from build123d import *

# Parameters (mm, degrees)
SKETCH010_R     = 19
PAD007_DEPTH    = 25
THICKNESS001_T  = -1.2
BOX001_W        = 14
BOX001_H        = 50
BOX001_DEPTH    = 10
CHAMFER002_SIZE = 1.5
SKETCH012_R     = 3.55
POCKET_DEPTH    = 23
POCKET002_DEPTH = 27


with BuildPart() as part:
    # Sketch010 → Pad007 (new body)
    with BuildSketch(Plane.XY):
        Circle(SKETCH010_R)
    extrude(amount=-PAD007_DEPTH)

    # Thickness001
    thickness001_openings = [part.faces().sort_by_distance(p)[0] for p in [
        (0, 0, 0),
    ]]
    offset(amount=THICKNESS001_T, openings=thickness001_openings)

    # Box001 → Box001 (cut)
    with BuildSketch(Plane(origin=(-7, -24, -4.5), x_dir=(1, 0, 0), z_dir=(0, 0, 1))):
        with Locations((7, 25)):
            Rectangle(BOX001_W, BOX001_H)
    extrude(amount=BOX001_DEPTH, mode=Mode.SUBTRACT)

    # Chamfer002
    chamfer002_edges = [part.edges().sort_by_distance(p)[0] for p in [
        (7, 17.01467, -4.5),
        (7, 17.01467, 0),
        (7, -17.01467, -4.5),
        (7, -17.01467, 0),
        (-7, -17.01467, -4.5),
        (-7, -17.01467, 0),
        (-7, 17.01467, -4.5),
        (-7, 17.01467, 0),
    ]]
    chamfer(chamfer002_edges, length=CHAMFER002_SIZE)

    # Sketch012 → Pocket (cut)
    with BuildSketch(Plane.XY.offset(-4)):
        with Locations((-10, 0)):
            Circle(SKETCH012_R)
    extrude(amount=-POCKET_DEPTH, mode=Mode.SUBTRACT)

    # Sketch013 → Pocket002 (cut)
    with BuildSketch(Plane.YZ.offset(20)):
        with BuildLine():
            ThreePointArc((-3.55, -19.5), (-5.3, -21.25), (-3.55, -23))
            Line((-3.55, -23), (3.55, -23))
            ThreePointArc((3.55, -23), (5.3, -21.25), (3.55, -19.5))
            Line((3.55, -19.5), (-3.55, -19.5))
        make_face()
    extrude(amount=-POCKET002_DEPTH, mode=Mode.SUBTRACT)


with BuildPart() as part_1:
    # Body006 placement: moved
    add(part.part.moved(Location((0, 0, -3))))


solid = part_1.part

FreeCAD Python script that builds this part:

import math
import FreeCAD as App
import Part
import Sketcher

V = App.Vector
Q = App.Units.Quantity


def edges_at(feature, points):
    """Names of the edges that pass closest to the given points."""
    edges = feature.Shape.Edges
    near = lambda p: min(range(len(edges)), key=lambda i: edges[i].distToShape(Part.Vertex(*p))[0])
    return sorted({f"Edge{near(p) + 1}" for p in points})


def faces_at(feature, points):
    """Names of the faces that lie closest to the given points."""
    faces = feature.Shape.Faces
    near = lambda p: min(range(len(faces)), key=lambda i: faces[i].distToShape(Part.Vertex(*p))[0])
    return sorted({f"Face{near(p) + 1}" for p in points})

doc = App.newDocument("Part")
params = doc.addObject("Spreadsheet::Sheet", "Params")
for row, (alias, value) in enumerate([
    ("sketch1_diameter", "38 mm"),
    ("pad1_length", "25 mm"),
    ("thickness_wall", "1.2 mm"),
    ("sketch2_width", "14 mm"),
    ("sketch2_height", "50 mm"),
    ("pocket1_length", "10 mm"),
    ("chamfer_size", "1.5 mm"),
    ("sketch3_diameter", "7.1 mm"),
    ("pocket2_length", "23 mm"),
    ("sketch4_radius", "1.75 mm"),
    ("sketch4_width", "7.1 mm"),
    ("pocket3_length", "27 mm"),
], start=1):
    params.set(f"A{row}", alias)
    params.set(f"B{row}", "=" + value)
    params.setAlias(f"B{row}", alias)

body = doc.addObject("PartDesign::Body", "Body")

# Sketch on XY plane
sketch1 = body.newObject("Sketcher::SketchObject", "Sketch")
sketch1.AttachmentSupport = (doc.getObject("XY_Plane"), [""])
sketch1.MapMode = "FlatFace"
sketch1.addGeometry(Part.Circle(V(0, 0, 0), V(0, 0, 1), 19), False)
sketch1.addConstraint([
    Sketcher.Constraint("Coincident", 0, 3, -1, 1),
    Sketcher.Constraint("Diameter", 0, Q("38 mm")),
])
sketch1.setExpression("Constraints[1]", "Params.sketch1_diameter")
pad1 = body.newObject("PartDesign::Pad", "Pad")
pad1.Profile = sketch1
pad1.setExpression("Length", "Params.pad1_length")
pad1.Reversed = True
doc.recompute()

thickness = body.newObject("PartDesign::Thickness", "Thickness")
thickness.Base = (pad1, faces_at(pad1, [(0, 0, 0)]))
thickness.setExpression("Value", "Params.thickness_wall")
thickness.Reversed = True
thickness.Join = "Arc"

# Sketch on XY plane
sketch2 = body.newObject("Sketcher::SketchObject", "Sketch001")
sketch2.AttachmentSupport = (doc.getObject("XY_Plane"), [""])
sketch2.MapMode = "FlatFace"
sketch2.AttachmentOffset = App.Placement(V(0, 0, -4.5), App.Rotation())
sketch2.addGeometry([
    Part.LineSegment(V(-7, 26, 0), V(-7, -24, 0)),
    Part.LineSegment(V(-7, -24, 0), V(7, -24, 0)),
    Part.LineSegment(V(7, -24, 0), V(7, 26, 0)),
    Part.LineSegment(V(7, 26, 0), V(-7, 26, 0)),
], False)
sketch2.addConstraint([
    Sketcher.Constraint("Coincident", 0, 2, 1, 1),
    Sketcher.Constraint("Coincident", 1, 2, 2, 1),
    Sketcher.Constraint("Coincident", 2, 2, 3, 1),
    Sketcher.Constraint("Coincident", 3, 2, 0, 1),
    Sketcher.Constraint("Vertical", 0),
    Sketcher.Constraint("Horizontal", 1),
    Sketcher.Constraint("Vertical", 2),
    Sketcher.Constraint("Horizontal", 3),
    Sketcher.Constraint("DistanceX", 1, 1, 1, 2, Q("14 mm")),
    Sketcher.Constraint("DistanceY", 0, 2, 0, 1, Q("50 mm")),
    Sketcher.Constraint("DistanceX", 0, 2, -1, 1, Q("7 mm")),
    Sketcher.Constraint("DistanceY", 0, 2, -1, 1, Q("24 mm")),
])
sketch2.setExpression("Constraints[8]", "Params.sketch2_width")
sketch2.setExpression("Constraints[9]", "Params.sketch2_height")
pocket1 = body.newObject("PartDesign::Pocket", "Pocket")
pocket1.Profile = sketch2
pocket1.setExpression("Length", "Params.pocket1_length")
pocket1.Reversed = True
doc.recompute()

chamfer = body.newObject("PartDesign::Chamfer", "Chamfer")
chamfer.Base = (pocket1, edges_at(pocket1, [
    (7, 17.015, -4.5),
    (7, 17.015, 0),
    (7, -17.015, -4.5),
    (7, -17.015, 0),
    (-7, -17.015, -4.5),
    (-7, -17.015, 0),
    (-7, 17.015, -4.5),
    (-7, 17.015, 0),
]))
chamfer.setExpression("Size", "Params.chamfer_size")

# Sketch on XY plane
sketch3 = body.newObject("Sketcher::SketchObject", "Sketch002")
sketch3.AttachmentSupport = (doc.getObject("XY_Plane"), [""])
sketch3.MapMode = "FlatFace"
sketch3.AttachmentOffset = App.Placement(V(0, 0, -4), App.Rotation())
sketch3.addGeometry(Part.Circle(V(-10, 0, 0), V(0, 0, 1), 3.5), False)
sketch3.addConstraint([
    Sketcher.Constraint("PointOnObject", 0, 3, -1),
    Sketcher.Constraint("Diameter", 0, Q("7.1 mm")),
    Sketcher.Constraint("DistanceX", 0, 3, -1, 1, Q("10 mm")),
])
sketch3.setExpression("Constraints[1]", "Params.sketch3_diameter")
pocket2 = body.newObject("PartDesign::Pocket", "Pocket001")
pocket2.Profile = sketch3
pocket2.setExpression("Length", "Params.pocket2_length")

# Sketch on YZ plane
sketch4 = body.newObject("Sketcher::SketchObject", "Sketch003")
sketch4.AttachmentSupport = (doc.getObject("YZ_Plane"), [""])
sketch4.MapMode = "FlatFace"
sketch4.AttachmentOffset = App.Placement(V(0, 0, 20), App.Rotation())
sketch4.addGeometry([
    Part.ArcOfCircle(Part.Circle(V(-3.5, -21.2, 0), V(0, 0, 1), 1.8), math.radians(90), math.radians(270)),
    Part.LineSegment(V(-3.5, -23, 0), V(3.5, -23, 0)),
    Part.ArcOfCircle(Part.Circle(V(3.5, -21.2, 0), V(0, 0, 1), 1.8), math.radians(-90), math.radians(90)),
    Part.LineSegment(V(3.5, -19.5, 0), V(-3.5, -19.5, 0)),
], False)
sketch4.addConstraint([
    Sketcher.Constraint("Tangent", 0, 2, 1, 1),
    Sketcher.Constraint("Tangent", 1, 2, 2, 1),
    Sketcher.Constraint("Tangent", 2, 2, 3, 1),
    Sketcher.Constraint("Tangent", 3, 2, 0, 1),
    Sketcher.Constraint("Horizontal", 1),
    Sketcher.Constraint("Horizontal", 3),
    Sketcher.Constraint("Radius", 0, Q("1.75 mm")),
    Sketcher.Constraint("DistanceX", 1, 1, 1, 2, Q("7.1 mm")),
    Sketcher.Constraint("DistanceY", 0, 2, -1, 1, Q("23 mm")),
    Sketcher.Constraint("DistanceX", 0, 3, -1, 1, Q("3.55 mm")),
])
sketch4.setExpression("Constraints[6]", "Params.sketch4_radius")
sketch4.setExpression("Constraints[7]", "Params.sketch4_width")
pocket3 = body.newObject("PartDesign::Pocket", "Pocket002")
pocket3.Profile = sketch4
pocket3.setExpression("Length", "Params.pocket3_length")
body2 = doc.addObject("PartDesign::Body", "Body001")
doc.recompute()

body.Placement = App.Placement(V(0, 0, -3), App.Rotation(V(0, 0, 1), 0))
boolean = body2.newObject("PartDesign::Boolean", "Boolean")
boolean.Type = "Fuse"
boolean.addObjects([body])

doc.recompute()
